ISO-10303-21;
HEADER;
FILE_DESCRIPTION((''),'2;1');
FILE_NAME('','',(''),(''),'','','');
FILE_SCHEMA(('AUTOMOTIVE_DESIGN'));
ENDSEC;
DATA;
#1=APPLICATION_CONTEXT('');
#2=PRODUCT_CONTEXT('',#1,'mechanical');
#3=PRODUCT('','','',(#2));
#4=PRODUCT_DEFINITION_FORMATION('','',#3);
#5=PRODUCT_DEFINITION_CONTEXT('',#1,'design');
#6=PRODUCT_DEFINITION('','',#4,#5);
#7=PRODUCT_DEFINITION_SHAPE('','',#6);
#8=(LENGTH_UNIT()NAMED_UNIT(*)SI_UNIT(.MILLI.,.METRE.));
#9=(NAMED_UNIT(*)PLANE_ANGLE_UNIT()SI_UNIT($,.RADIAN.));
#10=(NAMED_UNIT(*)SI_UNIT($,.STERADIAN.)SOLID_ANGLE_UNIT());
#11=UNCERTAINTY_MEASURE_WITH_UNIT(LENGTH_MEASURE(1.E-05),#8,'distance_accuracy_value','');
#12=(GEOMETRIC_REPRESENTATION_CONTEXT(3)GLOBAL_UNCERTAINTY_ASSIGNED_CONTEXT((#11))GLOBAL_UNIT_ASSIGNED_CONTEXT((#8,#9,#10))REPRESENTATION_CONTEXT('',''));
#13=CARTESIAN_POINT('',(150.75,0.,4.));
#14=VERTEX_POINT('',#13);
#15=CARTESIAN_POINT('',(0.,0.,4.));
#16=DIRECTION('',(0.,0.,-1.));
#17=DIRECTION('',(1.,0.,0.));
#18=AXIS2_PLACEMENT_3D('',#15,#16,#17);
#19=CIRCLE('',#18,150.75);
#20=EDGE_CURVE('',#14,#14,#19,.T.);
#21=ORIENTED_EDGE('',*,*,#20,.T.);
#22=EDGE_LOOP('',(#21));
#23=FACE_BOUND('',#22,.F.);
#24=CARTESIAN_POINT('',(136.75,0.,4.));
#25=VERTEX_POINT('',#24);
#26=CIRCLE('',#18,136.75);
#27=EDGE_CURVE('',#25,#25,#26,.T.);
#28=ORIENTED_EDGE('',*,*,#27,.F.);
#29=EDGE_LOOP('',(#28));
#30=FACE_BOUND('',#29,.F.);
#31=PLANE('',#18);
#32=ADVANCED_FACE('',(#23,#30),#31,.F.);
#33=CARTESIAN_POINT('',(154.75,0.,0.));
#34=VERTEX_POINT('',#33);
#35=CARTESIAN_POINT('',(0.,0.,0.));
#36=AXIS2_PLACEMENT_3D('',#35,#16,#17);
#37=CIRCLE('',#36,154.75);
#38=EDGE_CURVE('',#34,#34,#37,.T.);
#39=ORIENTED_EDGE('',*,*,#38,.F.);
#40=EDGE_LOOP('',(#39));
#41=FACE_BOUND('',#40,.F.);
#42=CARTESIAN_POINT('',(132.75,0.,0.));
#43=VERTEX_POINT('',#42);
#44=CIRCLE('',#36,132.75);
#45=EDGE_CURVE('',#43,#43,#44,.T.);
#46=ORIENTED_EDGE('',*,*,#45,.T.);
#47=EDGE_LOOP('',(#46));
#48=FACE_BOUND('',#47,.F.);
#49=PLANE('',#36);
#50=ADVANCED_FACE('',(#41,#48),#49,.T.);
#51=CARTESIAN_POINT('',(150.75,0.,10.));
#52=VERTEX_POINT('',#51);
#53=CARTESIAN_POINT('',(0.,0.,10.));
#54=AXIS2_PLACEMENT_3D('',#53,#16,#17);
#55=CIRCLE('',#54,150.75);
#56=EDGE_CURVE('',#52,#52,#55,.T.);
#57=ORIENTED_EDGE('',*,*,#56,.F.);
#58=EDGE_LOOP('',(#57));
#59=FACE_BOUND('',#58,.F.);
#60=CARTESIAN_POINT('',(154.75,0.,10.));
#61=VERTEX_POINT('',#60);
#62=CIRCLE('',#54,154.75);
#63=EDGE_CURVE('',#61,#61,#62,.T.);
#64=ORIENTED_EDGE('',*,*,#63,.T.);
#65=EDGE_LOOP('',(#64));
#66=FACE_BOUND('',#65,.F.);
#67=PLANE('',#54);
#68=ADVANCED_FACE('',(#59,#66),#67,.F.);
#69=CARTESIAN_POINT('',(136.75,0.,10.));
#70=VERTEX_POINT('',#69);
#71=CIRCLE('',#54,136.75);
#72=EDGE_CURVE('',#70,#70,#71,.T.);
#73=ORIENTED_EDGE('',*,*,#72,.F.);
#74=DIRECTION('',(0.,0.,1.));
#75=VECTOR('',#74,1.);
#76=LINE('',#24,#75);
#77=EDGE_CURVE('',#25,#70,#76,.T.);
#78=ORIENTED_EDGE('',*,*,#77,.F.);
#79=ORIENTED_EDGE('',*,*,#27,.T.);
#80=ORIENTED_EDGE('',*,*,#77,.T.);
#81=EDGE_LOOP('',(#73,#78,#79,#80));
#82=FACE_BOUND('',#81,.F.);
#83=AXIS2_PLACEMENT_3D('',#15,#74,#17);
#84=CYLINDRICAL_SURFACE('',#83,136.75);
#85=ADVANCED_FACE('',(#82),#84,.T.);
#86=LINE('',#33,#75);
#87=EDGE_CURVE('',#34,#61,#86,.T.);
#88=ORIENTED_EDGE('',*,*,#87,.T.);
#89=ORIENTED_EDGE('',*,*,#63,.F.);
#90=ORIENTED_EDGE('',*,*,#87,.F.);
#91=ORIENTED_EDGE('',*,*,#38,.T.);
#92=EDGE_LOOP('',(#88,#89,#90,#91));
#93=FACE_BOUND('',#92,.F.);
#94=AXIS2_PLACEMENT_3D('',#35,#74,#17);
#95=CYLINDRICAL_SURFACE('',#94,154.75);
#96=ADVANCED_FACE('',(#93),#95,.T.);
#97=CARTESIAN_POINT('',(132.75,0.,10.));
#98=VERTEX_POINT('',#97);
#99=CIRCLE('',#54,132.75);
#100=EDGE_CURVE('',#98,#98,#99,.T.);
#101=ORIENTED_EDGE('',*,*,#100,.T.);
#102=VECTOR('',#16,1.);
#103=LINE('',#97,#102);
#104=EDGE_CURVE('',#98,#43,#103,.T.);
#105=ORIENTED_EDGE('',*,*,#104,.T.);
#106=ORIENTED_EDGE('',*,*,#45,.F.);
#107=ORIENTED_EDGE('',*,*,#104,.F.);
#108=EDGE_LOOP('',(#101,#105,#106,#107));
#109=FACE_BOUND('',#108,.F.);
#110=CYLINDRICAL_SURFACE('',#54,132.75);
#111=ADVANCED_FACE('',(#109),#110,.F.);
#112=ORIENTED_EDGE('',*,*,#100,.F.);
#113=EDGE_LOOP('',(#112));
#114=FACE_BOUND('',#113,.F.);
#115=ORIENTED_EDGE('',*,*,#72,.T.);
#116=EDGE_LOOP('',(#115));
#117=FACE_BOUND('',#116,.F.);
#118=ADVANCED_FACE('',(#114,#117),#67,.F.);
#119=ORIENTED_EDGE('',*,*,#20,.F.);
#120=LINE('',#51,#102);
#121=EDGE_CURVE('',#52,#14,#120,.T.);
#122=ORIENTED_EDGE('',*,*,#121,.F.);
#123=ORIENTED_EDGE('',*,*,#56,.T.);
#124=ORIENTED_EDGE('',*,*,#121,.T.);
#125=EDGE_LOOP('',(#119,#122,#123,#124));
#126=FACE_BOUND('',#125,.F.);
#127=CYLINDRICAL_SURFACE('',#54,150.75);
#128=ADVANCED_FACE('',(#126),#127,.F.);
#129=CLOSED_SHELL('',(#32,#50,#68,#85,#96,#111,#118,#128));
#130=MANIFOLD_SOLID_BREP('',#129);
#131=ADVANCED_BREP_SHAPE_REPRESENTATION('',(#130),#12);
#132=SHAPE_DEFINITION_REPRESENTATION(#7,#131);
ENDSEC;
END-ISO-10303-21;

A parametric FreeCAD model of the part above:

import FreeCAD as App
import Part
import Sketcher
from FreeCAD import Vector
Q = App.Units.Quantity


def add_polygon(sketch, points):
    """Adds a closed chain of lines whose ends are joined by coincident constraints."""
    first, n = sketch.GeometryCount, len(points)
    for a, b in zip(points, points[1:] + points[:1]):
        sketch.addGeometry(Part.LineSegment(App.Vector(*a, 0), App.Vector(*b, 0)), False)
    for i in range(n):
        sketch.addConstraint(Sketcher.Constraint("Coincident", first + i, 2, first + (i + 1) % n, 1))

doc = App.newDocument("Part")
params = doc.addObject("Spreadsheet::Sheet", "Params")
for row, (alias, value) in enumerate([
    ("sketch1_width", "22 mm"),
    ("sketch1_width2", "4 mm"),
    ("sketch1_height", "10 mm"),
    ("sketch1_height2", "6 mm"),
    ("revolution_angle", "360 deg"),
], start=1):
    params.set(f"A{row}", alias)
    params.set(f"B{row}", "=" + value)
    params.setAlias(f"B{row}", alias)

body = doc.addObject("PartDesign::Body", "Body")

# Sketch on XZ plane
sketch1 = body.newObject("Sketcher::SketchObject", "Sketch")
sketch1.AttachmentSupport = (doc.getObject("XZ_Plane"), [""])
sketch1.MapMode = "FlatFace"
add_polygon(sketch1, [(132.8, 10), (132.8, 0), (154.8, 0), (154.8, 10), (150.8, 10), (150.8, 4), (136.8, 4), (136.8, 10)])  # lines 0-7
sketch1.addConstraint(Sketcher.Constraint("Vertical", 0))
sketch1.addConstraint(Sketcher.Constraint("Horizontal", 1))
sketch1.addConstraint(Sketcher.Constraint("Vertical", 2))
sketch1.addConstraint(Sketcher.Constraint("Horizontal", 3))
sketch1.addConstraint(Sketcher.Constraint("Vertical", 4))
sketch1.addConstraint(Sketcher.Constraint("Horizontal", 5))
sketch1.addConstraint(Sketcher.Constraint("Vertical", 6))
sketch1.addConstraint(Sketcher.Constraint("Horizontal", 7))
sketch1.addConstraint(Sketcher.Constraint("PointOnObject", 0, 2, -1))
sketch1.addConstraint(Sketcher.Constraint("Horizontal", 3, 2, 6, 2))
sketch1.addConstraint(Sketcher.Constraint("Equal", 3, 7))
sketch1.addConstraint(Sketcher.Constraint("DistanceX", 1, 1, 1, 2, Q("22 mm")))
sketch1.addConstraint(Sketcher.Constraint("DistanceX", 3, 2, 3, 1, Q("4 mm")))
sketch1.addConstraint(Sketcher.Constraint("DistanceY", 0, 2, 0, 1, Q("10 mm")))
sketch1.addConstraint(Sketcher.Constraint("DistanceY", 4, 2, 4, 1, Q("6 mm")))
sketch1.addConstraint(Sketcher.Constraint("DistanceX", -1, 1, 0, 2, Q("132.75 mm")))
sketch1.setExpression("Constraints[19]", "Params.sketch1_width")
sketch1.setExpression("Constraints[20]", "Params.sketch1_width2")
sketch1.setExpression("Constraints[21]", "Params.sketch1_height")
sketch1.setExpression("Constraints[22]", "Params.sketch1_height2")
revolution = body.newObject("PartDesign::Revolution", "Revolution")
revolution.Profile = sketch1
revolution.ReferenceAxis = (sketch1, ["V_Axis"])
revolution.setExpression("Angle", "Params.revolution_angle")

doc.recompute()
